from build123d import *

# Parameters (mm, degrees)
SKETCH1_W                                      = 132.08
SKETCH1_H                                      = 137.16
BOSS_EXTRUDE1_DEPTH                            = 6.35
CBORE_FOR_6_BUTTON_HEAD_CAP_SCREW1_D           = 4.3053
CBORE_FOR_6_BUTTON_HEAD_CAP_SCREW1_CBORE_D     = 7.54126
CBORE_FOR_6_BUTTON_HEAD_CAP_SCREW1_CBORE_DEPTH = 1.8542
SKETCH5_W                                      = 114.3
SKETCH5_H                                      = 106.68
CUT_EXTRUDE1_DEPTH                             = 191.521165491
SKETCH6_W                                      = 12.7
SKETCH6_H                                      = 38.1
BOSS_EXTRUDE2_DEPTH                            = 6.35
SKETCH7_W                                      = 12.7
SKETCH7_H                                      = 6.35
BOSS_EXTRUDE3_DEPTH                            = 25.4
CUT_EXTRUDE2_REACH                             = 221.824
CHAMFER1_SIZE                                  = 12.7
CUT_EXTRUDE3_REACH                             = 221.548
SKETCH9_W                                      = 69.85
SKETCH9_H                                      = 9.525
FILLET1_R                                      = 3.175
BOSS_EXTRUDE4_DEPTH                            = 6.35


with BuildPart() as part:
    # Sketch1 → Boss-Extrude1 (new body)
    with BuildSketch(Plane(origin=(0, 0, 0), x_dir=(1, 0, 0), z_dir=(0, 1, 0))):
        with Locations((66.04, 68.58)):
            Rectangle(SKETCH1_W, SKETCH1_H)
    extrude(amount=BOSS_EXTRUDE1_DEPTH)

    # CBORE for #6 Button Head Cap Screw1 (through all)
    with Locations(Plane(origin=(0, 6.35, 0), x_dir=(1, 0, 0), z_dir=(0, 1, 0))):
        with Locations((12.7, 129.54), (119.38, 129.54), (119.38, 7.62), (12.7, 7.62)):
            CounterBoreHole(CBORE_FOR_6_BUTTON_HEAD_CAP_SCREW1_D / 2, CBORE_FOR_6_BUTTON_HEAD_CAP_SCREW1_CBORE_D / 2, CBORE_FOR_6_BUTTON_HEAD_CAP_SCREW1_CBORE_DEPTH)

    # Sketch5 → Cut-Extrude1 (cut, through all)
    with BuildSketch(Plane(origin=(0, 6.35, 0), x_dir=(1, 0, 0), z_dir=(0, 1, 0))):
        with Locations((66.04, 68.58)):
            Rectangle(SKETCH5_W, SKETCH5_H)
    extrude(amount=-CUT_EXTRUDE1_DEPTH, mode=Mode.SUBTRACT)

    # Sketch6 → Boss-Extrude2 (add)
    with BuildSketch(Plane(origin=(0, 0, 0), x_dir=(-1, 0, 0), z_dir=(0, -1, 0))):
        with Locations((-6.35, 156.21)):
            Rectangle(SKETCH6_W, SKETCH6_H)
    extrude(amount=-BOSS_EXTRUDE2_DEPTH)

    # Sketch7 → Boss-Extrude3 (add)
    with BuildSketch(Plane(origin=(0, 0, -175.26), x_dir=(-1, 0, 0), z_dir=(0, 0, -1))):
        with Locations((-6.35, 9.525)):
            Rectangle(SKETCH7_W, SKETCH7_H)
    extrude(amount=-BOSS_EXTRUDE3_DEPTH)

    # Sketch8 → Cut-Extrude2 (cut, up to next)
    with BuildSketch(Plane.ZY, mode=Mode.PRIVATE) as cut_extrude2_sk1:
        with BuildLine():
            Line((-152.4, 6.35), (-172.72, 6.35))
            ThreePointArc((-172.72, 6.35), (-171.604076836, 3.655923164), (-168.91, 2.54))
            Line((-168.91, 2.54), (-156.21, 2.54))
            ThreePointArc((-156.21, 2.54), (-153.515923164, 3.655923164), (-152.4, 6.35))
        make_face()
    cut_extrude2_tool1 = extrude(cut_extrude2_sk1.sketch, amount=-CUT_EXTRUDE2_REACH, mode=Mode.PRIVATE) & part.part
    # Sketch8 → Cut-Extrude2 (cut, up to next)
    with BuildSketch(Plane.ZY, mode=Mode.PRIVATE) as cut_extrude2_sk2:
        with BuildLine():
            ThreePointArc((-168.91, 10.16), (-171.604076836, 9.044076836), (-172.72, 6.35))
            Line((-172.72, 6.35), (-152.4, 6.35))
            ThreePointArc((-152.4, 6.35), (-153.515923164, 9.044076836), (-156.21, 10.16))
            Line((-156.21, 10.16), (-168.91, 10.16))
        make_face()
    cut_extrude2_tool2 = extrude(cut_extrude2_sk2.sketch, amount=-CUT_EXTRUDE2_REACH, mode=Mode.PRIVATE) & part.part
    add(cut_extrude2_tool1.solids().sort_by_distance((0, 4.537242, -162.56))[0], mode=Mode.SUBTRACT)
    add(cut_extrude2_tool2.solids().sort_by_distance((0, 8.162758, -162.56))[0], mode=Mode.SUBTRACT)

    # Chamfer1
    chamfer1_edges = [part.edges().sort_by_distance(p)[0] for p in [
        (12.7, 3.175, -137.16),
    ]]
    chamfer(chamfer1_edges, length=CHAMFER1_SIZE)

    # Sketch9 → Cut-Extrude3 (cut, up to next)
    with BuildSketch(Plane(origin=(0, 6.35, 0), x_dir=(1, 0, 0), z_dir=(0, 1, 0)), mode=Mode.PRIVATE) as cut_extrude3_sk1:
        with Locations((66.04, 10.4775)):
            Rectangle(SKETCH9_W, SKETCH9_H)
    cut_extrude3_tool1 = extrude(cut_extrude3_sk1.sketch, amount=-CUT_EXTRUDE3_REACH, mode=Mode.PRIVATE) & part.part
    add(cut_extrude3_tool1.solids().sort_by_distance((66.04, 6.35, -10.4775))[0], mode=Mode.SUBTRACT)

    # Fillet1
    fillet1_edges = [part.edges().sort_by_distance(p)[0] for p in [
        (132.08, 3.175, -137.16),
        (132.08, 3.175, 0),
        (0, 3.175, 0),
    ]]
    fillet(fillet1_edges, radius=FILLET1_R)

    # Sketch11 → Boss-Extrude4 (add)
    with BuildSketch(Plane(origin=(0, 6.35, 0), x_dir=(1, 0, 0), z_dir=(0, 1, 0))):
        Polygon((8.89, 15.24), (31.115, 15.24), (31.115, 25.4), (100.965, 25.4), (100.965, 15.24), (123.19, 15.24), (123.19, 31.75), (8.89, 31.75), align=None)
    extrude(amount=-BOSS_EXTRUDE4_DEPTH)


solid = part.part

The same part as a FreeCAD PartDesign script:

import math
import FreeCAD as App
import Part
import Sketcher

V = App.Vector
Q = App.Units.Quantity


def edges_at(feature, points):
    """Names of the edges that pass closest to the given points."""
    edges = feature.Shape.Edges
    near = lambda p: min(range(len(edges)), key=lambda i: edges[i].distToShape(Part.Vertex(*p))[0])
    return sorted({f"Edge{near(p) + 1}" for p in points})


def add_polygon(sketch, points):
    """Adds a closed chain of lines whose ends are joined by coincident constraints."""
    first, n = sketch.GeometryCount, len(points)
    for a, b in zip(points, points[1:] + points[:1]):
        sketch.addGeometry(Part.LineSegment(App.Vector(*a, 0), App.Vector(*b, 0)), False)
    for i in range(n):
        sketch.addConstraint(Sketcher.Constraint("Coincident", first + i, 2, first + (i + 1) % n, 1))

doc = App.newDocument("Part")
params = doc.addObject("Spreadsheet::Sheet", "Params")
for row, (alias, value) in enumerate([
    ("sketch1_width", "5.2 in"),
    ("sketch1_height", "5.4 in"),
    ("pad1_length", "0.25 in"),
    ("hole_diameter", "0.1695 in"),
    ("hole_cbore_diameter", "0.2969 in"),
    ("hole_cbore_depth", "0.073 in"),
    ("sketch3_width", "4.5 in"),
    ("sketch3_height", "4.2 in"),
    ("sketch4_width", "0.5 in"),
    ("sketch4_height", "1.5 in"),
    ("pad2_length", "0.25 in"),
    ("sketch5_width", "0.5 in"),
    ("sketch5_height", "0.25 in"),
    ("pad3_length", "1 in"),
    ("sketch6_radius", "0.15 in"),
    ("sketch6_height", "0.8 in"),
    ("sketch7_radius", "0.15 in"),
    ("sketch7_height", "0.8 in"),
    ("chamfer_size", "0.5 in"),
    ("sketch8_width", "2.75 in"),
    ("sketch8_height", "0.375 in"),
    ("fillet_radius", "0.125 in"),
    ("sketch9_width", "4.5 in"),
    ("sketch9_height", "0.4 in"),
    ("sketch9_width2", "2.75 in"),
    ("sketch9_height2", "0.65 in"),
    ("pad4_length", "0.25 in"),
], start=1):
    params.set(f"A{row}", alias)
    params.set(f"B{row}", "=" + value)
    params.setAlias(f"B{row}", alias)

body = doc.addObject("PartDesign::Body", "Body")

sketch1 = body.newObject("Sketcher::SketchObject", "Sketch")
sketch1.AttachmentSupport = (doc.getObject("XZ_Plane"), [""])
sketch1.MapMode = "FlatFace"
add_polygon(sketch1, [(0, -137), (0, 0), (132, 0), (132, -137)])
sketch1.addConstraint(Sketcher.Constraint("Vertical", 0))
sketch1.addConstraint(Sketcher.Constraint("Horizontal", 1))
sketch1.addConstraint(Sketcher.Constraint("Vertical", 2))
sketch1.addConstraint(Sketcher.Constraint("Horizontal", 3))
sketch1.addConstraint(Sketcher.Constraint("Coincident", 0, 2, -1, 1))
sketch1.addConstraint(Sketcher.Constraint("DistanceX", 1, 1, 1, 2, Q("5.2 in")))
sketch1.addConstraint(Sketcher.Constraint("DistanceY", 0, 1, 0, 2, Q("5.4 in")))
sketch1.setExpression("Constraints[9]", "Params.sketch1_width")
sketch1.setExpression("Constraints[10]", "Params.sketch1_height")
pad1 = body.newObject("PartDesign::Pad", "Pad")
pad1.Profile = sketch1
pad1.setExpression("Length", "Params.pad1_length")
pad1.Reversed = True

sketch2 = body.newObject("Sketcher::SketchObject", "Sketch001")
sketch2.AttachmentSupport = (doc.getObject("XZ_Plane"), [""])
sketch2.MapMode = "FlatFace"
sketch2.AttachmentOffset = App.Placement(V(0, 0, -0.25 * 25.4), App.Rotation())
sketch2.addGeometry(Part.Circle(V(12.7, -129.5, 0), V(0, 0, 1), 2.2), False)
sketch2.addGeometry(Part.Circle(V(119.4, -129.5, 0), V(0, 0, 1), 2.2), False)
sketch2.addGeometry(Part.Circle(V(119.4, -7.6, 0), V(0, 0, 1), 2.2), False)
sketch2.addGeometry(Part.Circle(V(12.7, -7.6, 0), V(0, 0, 1), 2.2), False)
sketch2.addConstraint(Sketcher.Constraint("Equal", 0, 1))
sketch2.addConstraint(Sketcher.Constraint("Equal", 1, 2))
sketch2.addConstraint(Sketcher.Constraint("Equal", 2, 3))
sketch2.addConstraint(Sketcher.Constraint("Horizontal", 0, 3, 1, 3))
sketch2.addConstraint(Sketcher.Constraint("Horizontal", 2, 3, 3, 3))
sketch2.addConstraint(Sketcher.Constraint("Vertical", 1, 3, 2, 3))
sketch2.addConstraint(Sketcher.Constraint("Vertical", 0, 3, 3, 3))
sketch2.addConstraint(Sketcher.Constraint("Diameter", 0, Q("0.1695 in")))
sketch2.addConstraint(Sketcher.Constraint("DistanceX", -1, 1, 0, 3, Q("0.5 in")))
sketch2.addConstraint(Sketcher.Constraint("DistanceY", 0, 3, -1, 1, Q("5.1 in")))
sketch2.addConstraint(Sketcher.Constraint("DistanceX", -1, 1, 1, 3, Q("4.7 in")))
sketch2.addConstraint(Sketcher.Constraint("DistanceY", 2, 3, -1, 1, Q("0.3 in")))
doc.recompute()
hole = body.newObject("PartDesign::Hole", "Hole")
hole.Profile = sketch2
hole.ThreadType = "None"
hole.setExpression("Diameter", "Params.hole_diameter")
hole.DepthType = "ThroughAll"
hole.HoleCutType = "Counterbore"
hole.setExpression("HoleCutDiameter", "Params.hole_cbore_diameter")
hole.setExpression("HoleCutDepth", "Params.hole_cbore_depth")
hole.Reversed = True

sketch3 = body.newObject("Sketcher::SketchObject", "Sketch002")
sketch3.AttachmentSupport = (doc.getObject("XZ_Plane"), [""])
sketch3.MapMode = "FlatFace"
sketch3.AttachmentOffset = App.Placement(V(0, 0, -0.25 * 25.4), App.Rotation())
add_polygon(sketch3, [(9, -122), (9, -15), (123, -15), (123, -122)])
sketch3.addConstraint(Sketcher.Constraint("Vertical", 0))
sketch3.addConstraint(Sketcher.Constraint("Horizontal", 1))
sketch3.addConstraint(Sketcher.Constraint("Vertical", 2))
sketch3.addConstraint(Sketcher.Constraint("Horizontal", 3))
sketch3.addConstraint(Sketcher.Constraint("DistanceX", 1, 1, 1, 2, Q("4.5 in")))
sketch3.addConstraint(Sketcher.Constraint("DistanceY", 0, 1, 0, 2, Q("4.2 in")))
sketch3.addConstraint(Sketcher.Constraint("DistanceY", 0, 2, -1, 1, Q("0.6 in")))
sketch3.addConstraint(Sketcher.Constraint("DistanceX", -1, 1, 0, 2, Q("0.35 in")))
sketch3.setExpression("Constraints[8]", "Params.sketch3_width")
sketch3.setExpression("Constraints[9]", "Params.sketch3_height")
pocket1 = body.newObject("PartDesign::Pocket", "Pocket")
pocket1.Profile = sketch3
pocket1.Type = "ThroughAll"
pocket1.Reversed = True

sketch4 = body.newObject("Sketcher::SketchObject", "Sketch003")
sketch4.AttachmentSupport = (doc.getObject("XZ_Plane"), [""])
sketch4.MapMode = "FlatFace"
add_polygon(sketch4, [(13, -175), (13, -137), (0, -137), (0, -175)])
sketch4.addConstraint(Sketcher.Constraint("Vertical", 0))
sketch4.addConstraint(Sketcher.Constraint("Horizontal", 1))
sketch4.addConstraint(Sketcher.Constraint("Vertical", 2))
sketch4.addConstraint(Sketcher.Constraint("Horizontal", 3))
sketch4.addConstraint(Sketcher.Constraint("PointOnObject", 1, 2, -2))
sketch4.addConstraint(Sketcher.Constraint("DistanceX", 1, 2, 1, 1, Q("0.5 in")))
sketch4.addConstraint(Sketcher.Constraint("DistanceY", 0, 1, 0, 2, Q("1.5 in")))
sketch4.addConstraint(Sketcher.Constraint("DistanceY", 0, 2, -1, 1, Q("5.4 in")))
sketch4.setExpression("Constraints[9]", "Params.sketch4_width")
sketch4.setExpression("Constraints[10]", "Params.sketch4_height")
pad2 = body.newObject("PartDesign::Pad", "Pad001")
pad2.Profile = sketch4
pad2.setExpression("Length", "Params.pad2_length")
pad2.Reversed = True

sketch5 = body.newObject("Sketcher::SketchObject", "Sketch004")
sketch5.AttachmentSupport = (doc.getObject("XY_Plane"), [""])
sketch5.MapMode = "FlatFace"
sketch5.AttachmentOffset = App.Placement(V(0, 0, -6.9 * 25.4), App.Rotation())
add_polygon(sketch5, [(13, 13), (13, 6), (0, 6), (0, 13)])
sketch5.addConstraint(Sketcher.Constraint("Vertical", 0))
sketch5.addConstraint(Sketcher.Constraint("Horizontal", 1))
sketch5.addConstraint(Sketcher.Constraint("Vertical", 2))
sketch5.addConstraint(Sketcher.Constraint("Horizontal", 3))
sketch5.addConstraint(Sketcher.Constraint("PointOnObject", 1, 2, -2))
sketch5.addConstraint(Sketcher.Constraint("DistanceX", 1, 2, 1, 1, Q("0.5 in")))
sketch5.addConstraint(Sketcher.Constraint("DistanceY", 0, 2, 0, 1, Q("0.25 in")))
sketch5.addConstraint(Sketcher.Constraint("DistanceY", -1, 1, 2, 2, Q("0.5 in")))
sketch5.setExpression("Constraints[9]", "Params.sketch5_width")
sketch5.setExpression("Constraints[10]", "Params.sketch5_height")
pad3 = body.newObject("PartDesign::Pad", "Pad002")
pad3.Profile = sketch5
pad3.setExpression("Length", "Params.pad3_length")

sketch6 = body.newObject("Sketcher::SketchObject", "Sketch005")
sketch6.AttachmentSupport = (doc.getObject("YZ_Plane"), [""])
sketch6.MapMode = "FlatFace"
sketch6.addGeometry(Part.LineSegment(V(6.3, -152.4, 0), V(6.3, -172.7, 0)), False)
sketch6.addGeometry(Part.ArcOfCircle(Part.Circle(V(6.4, -168.9, 0), V(0, 0, 1), 3.8), math.radians(-180), math.radians(-90)), False)
sketch6.addGeometry(Part.LineSegment(V(2.5, -168.9, 0), V(2.5, -156.2, 0)), False)
sketch6.addGeometry(Part.ArcOfCircle(Part.Circle(V(6.4, -156.2, 0), V(0, 0, 1), 3.8), math.radians(90), math.radians(180)), False)
sketch6.addConstraint(Sketcher.Constraint("Coincident", 0, 2, 1, 2))
sketch6.addConstraint(Sketcher.Constraint("Tangent", 1, 1, 2, 1))
sketch6.addConstraint(Sketcher.Constraint("Tangent", 2, 2, 3, 2))
sketch6.addConstraint(Sketcher.Constraint("Coincident", 3, 1, 0, 1))
sketch6.addConstraint(Sketcher.Constraint("Vertical", 0))
sketch6.addConstraint(Sketcher.Constraint("Vertical", 2))
sketch6.addConstraint(Sketcher.Constraint("Equal", 1, 3))
sketch6.addConstraint(Sketcher.Constraint("Vertical", 3, 3, 0, 2))
sketch6.addConstraint(Sketcher.Constraint("Radius", 1, Q("0.15 in")))
sketch6.addConstraint(Sketcher.Constraint("DistanceY", 0, 2, 0, 1, Q("0.8 in")))
sketch6.addConstraint(Sketcher.Constraint("DistanceY", 3, 1, -1, 1, Q("6 in")))
sketch6.addConstraint(Sketcher.Constraint("DistanceX", -1, 1, 1, 1, Q("0.1 in")))
sketch6.setExpression("Constraints[8]", "Params.sketch6_radius")
sketch6.setExpression("Constraints[9]", "Params.sketch6_height")
pocket2 = body.newObject("PartDesign::Pocket", "Pocket001")
pocket2.Profile = sketch6
pocket2.Type = "UpToFirst"
pocket2.Reversed = True

sketch7 = body.newObject("Sketcher::SketchObject", "Sketch006")
sketch7.AttachmentSupport = (doc.getObject("YZ_Plane"), [""])
sketch7.MapMode = "FlatFace"
sketch7.addGeometry(Part.ArcOfCircle(Part.Circle(V(6.3, -168.9, 0), V(0, 0, 1), 3.8), math.radians(-90), math.radians(0)), False)
sketch7.addGeometry(Part.LineSegment(V(6.3, -172.7, 0), V(6.3, -152.4, 0)), False)
sketch7.addGeometry(Part.ArcOfCircle(Part.Circle(V(6.3, -156.2, 0), V(0, 0, 1), 3.8), math.radians(0), math.radians(90)), False)
sketch7.addGeometry(Part.LineSegment(V(10.2, -156.2, 0), V(10.2, -168.9, 0)), False)
sketch7.addConstraint(Sketcher.Constraint("Coincident", 0, 1, 1, 1))
sketch7.addConstraint(Sketcher.Constraint("Coincident", 1, 2, 2, 2))
sketch7.addConstraint(Sketcher.Constraint("Tangent", 2, 1, 3, 1))
sketch7.addConstraint(Sketcher.Constraint("Tangent", 3, 2, 0, 2))
sketch7.addConstraint(Sketcher.Constraint("Vertical", 1))
sketch7.addConstraint(Sketcher.Constraint("Vertical", 3))
sketch7.addConstraint(Sketcher.Constraint("Equal", 0, 2))
sketch7.addConstraint(Sketcher.Constraint("Vertical", 2, 3, 0, 1))
sketch7.addConstraint(Sketcher.Constraint("Radius", 0, Q("0.15 in")))
sketch7.addConstraint(Sketcher.Constraint("DistanceY", 1, 1, 1, 2, Q("0.8 in")))
sketch7.addConstraint(Sketcher.Constraint("DistanceY", 1, 2, -1, 1, Q("6 in")))
sketch7.addConstraint(Sketcher.Constraint("DistanceX", -1, 1, 2, 1, Q("0.4 in")))
sketch7.setExpression("Constraints[8]", "Params.sketch7_radius")
sketch7.setExpression("Constraints[9]", "Params.sketch7_height")
pocket3 = body.newObject("PartDesign::Pocket", "Pocket002")
pocket3.Profile = sketch7
pocket3.Type = "UpToFirst"
pocket3.Reversed = True
doc.recompute()

chamfer = body.newObject("PartDesign::Chamfer", "Chamfer")
chamfer.Base = (pocket3, edges_at(pocket3, [(12.7, 3.175, -137.16)]))
chamfer.setExpression("Size", "Params.chamfer_size")

sketch8 = body.newObject("Sketcher::SketchObject", "Sketch007")
sketch8.AttachmentSupport = (doc.getObject("XZ_Plane"), [""])
sketch8.MapMode = "FlatFace"
sketch8.AttachmentOffset = App.Placement(V(0, 0, -0.25 * 25.4), App.Rotation())
add_polygon(sketch8, [(31, -15), (31, -6), (101, -6), (101, -15)])
sketch8.addConstraint(Sketcher.Constraint("Vertical", 0))
sketch8.addConstraint(Sketcher.Constraint("Horizontal", 1))
sketch8.addConstraint(Sketcher.Constraint("Vertical", 2))
sketch8.addConstraint(Sketcher.Constraint("Horizontal", 3))
sketch8.addConstraint(Sketcher.Constraint("DistanceX", 1, 1, 1, 2, Q("2.75 in")))
sketch8.addConstraint(Sketcher.Constraint("DistanceY", 2, 2, -1, 1, Q("0.6 in")))
sketch8.addConstraint(Sketcher.Constraint("DistanceY", 0, 1, 0, 2, Q("0.375 in")))
sketch8.addConstraint(Sketcher.Constraint("DistanceX", -1, 1, 0, 2, Q("1.225 in")))
sketch8.setExpression("Constraints[8]", "Params.sketch8_width")
sketch8.setExpression("Constraints[10]", "Params.sketch8_height")
pocket4 = body.newObject("PartDesign::Pocket", "Pocket003")
pocket4.Profile = sketch8
pocket4.Type = "UpToFirst"
pocket4.Reversed = True
doc.recompute()

fillet = body.newObject("PartDesign::Fillet", "Fillet")
fillet.Base = (pocket4, edges_at(pocket4, [(132.08, 3.175, -137.16), (132.08, 3.175, 0), (0, 3.175, 0)]))
fillet.setExpression("Radius", "Params.fillet_radius")

sketch9 = body.newObject("Sketcher::SketchObject", "Sketch008")
sketch9.AttachmentSupport = (doc.getObject("XZ_Plane"), [""])
sketch9.MapMode = "FlatFace"
sketch9.AttachmentOffset = App.Placement(V(0, 0, -0.25 * 25.4), App.Rotation())
add_polygon(sketch9, [(9, -15), (31, -15), (31, -25), (101, -25), (101, -15), (123, -15), (123, -32), (9, -32)])
sketch9.addConstraint(Sketcher.Constraint("Horizontal", 0))
sketch9.addConstraint(Sketcher.Constraint("Vertical", 1))
sketch9.addConstraint(Sketcher.Constraint("Horizontal", 2))
sketch9.addConstraint(Sketcher.Constraint("Vertical", 3))
sketch9.addConstraint(Sketcher.Constraint("Horizontal", 4))
sketch9.addConstraint(Sketcher.Constraint("Vertical", 5))
sketch9.addConstraint(Sketcher.Constraint("Horizontal", 6))
sketch9.addConstraint(Sketcher.Constraint("Vertical", 7))
sketch9.addConstraint(Sketcher.Constraint("Horizontal", 0, 2, 3, 2))
sketch9.addConstraint(Sketcher.Constraint("Equal", 0, 4))
sketch9.addConstraint(Sketcher.Constraint("DistanceX", 6, 2, 6, 1, Q("4.5 in")))
sketch9.addConstraint(Sketcher.Constraint("DistanceY", 1, 2, 1, 1, Q("0.4 in")))
sketch9.addConstraint(Sketcher.Constraint("DistanceY", 1, 2, -1, 1, Q("1 in")))
sketch9.addConstraint(Sketcher.Constraint("DistanceX", 2, 1, 2, 2, Q("2.75 in")))
sketch9.addConstraint(Sketcher.Constraint("DistanceY", 5, 2, 5, 1, Q("0.65 in")))
sketch9.addConstraint(Sketcher.Constraint("DistanceX", -1, 1, 4, 2, Q("4.85 in")))
sketch9.setExpression("Constraints[18]", "Params.sketch9_width")
sketch9.setExpression("Constraints[19]", "Params.sketch9_height")
sketch9.setExpression("Constraints[21]", "Params.sketch9_width2")
sketch9.setExpression("Constraints[22]", "Params.sketch9_height2")
pad4 = body.newObject("PartDesign::Pad", "Pad003")
pad4.Profile = sketch9
pad4.setExpression("Length", "Params.pad4_length")

doc.recompute()
